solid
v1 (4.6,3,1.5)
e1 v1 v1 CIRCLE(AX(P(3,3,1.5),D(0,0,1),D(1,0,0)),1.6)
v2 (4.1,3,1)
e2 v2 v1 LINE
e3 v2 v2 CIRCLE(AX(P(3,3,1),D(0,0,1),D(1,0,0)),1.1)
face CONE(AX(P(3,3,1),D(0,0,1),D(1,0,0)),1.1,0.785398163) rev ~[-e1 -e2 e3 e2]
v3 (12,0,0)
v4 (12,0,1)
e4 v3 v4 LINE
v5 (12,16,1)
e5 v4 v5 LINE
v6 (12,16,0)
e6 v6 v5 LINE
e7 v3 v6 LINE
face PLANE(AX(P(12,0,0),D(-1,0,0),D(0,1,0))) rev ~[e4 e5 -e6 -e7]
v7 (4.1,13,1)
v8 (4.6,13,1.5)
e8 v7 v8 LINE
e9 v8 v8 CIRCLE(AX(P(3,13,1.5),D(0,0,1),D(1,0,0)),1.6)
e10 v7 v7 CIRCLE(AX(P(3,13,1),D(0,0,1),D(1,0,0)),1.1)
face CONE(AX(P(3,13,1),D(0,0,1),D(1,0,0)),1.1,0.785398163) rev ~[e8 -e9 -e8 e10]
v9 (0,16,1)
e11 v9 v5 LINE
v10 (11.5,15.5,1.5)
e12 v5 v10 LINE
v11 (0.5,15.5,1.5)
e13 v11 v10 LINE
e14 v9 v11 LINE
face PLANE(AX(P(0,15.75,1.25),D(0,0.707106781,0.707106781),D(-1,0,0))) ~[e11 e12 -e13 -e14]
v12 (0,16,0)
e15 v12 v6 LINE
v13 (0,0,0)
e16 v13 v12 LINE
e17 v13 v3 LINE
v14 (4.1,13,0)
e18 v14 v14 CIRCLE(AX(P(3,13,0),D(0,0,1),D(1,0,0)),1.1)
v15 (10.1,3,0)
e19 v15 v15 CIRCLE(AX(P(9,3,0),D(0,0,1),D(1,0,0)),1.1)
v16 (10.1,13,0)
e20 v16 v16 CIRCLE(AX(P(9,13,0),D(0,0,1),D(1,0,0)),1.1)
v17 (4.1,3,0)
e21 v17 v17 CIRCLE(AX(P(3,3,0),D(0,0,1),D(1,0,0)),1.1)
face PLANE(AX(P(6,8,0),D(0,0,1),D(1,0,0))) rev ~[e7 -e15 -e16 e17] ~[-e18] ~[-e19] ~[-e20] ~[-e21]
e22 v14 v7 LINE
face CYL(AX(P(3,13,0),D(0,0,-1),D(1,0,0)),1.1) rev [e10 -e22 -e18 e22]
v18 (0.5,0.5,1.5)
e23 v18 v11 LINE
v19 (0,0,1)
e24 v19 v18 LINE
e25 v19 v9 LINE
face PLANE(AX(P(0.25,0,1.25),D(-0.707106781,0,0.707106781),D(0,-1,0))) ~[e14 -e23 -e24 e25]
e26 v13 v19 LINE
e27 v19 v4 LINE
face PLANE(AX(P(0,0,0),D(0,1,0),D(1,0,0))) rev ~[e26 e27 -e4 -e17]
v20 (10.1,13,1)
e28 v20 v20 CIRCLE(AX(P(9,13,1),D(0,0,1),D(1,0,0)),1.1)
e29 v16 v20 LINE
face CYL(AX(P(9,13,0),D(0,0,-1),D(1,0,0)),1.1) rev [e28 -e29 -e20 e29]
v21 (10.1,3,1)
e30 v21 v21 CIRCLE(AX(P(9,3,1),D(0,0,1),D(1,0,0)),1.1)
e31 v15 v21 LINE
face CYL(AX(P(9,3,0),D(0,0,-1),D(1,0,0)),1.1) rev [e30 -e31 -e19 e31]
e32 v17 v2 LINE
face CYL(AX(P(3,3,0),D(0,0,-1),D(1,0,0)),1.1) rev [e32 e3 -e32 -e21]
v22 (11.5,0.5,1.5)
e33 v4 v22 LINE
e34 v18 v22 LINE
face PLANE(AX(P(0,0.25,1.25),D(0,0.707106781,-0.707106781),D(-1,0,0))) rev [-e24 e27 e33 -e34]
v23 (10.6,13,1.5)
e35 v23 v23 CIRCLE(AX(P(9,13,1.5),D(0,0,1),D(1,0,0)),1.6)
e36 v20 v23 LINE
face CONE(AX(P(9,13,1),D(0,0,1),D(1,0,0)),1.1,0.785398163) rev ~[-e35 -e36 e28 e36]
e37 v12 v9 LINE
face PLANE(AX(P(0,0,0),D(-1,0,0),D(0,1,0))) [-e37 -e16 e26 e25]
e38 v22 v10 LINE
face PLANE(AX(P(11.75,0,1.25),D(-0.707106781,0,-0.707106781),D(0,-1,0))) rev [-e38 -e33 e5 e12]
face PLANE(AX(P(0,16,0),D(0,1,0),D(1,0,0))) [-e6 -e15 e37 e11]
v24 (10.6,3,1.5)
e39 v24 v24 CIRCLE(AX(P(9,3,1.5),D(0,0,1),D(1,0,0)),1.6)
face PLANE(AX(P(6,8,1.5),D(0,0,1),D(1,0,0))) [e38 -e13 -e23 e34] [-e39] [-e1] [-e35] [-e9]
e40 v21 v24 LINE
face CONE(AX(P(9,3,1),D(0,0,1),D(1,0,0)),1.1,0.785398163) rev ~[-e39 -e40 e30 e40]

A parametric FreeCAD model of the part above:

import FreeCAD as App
import Part
import Sketcher
from FreeCAD import Vector
Q = App.Units.Quantity


def edges_at(feature, points):
    """Names of the edges that pass closest to the given points."""
    edges = feature.Shape.Edges
    near = lambda p: min(range(len(edges)), key=lambda i: edges[i].distToShape(Part.Vertex(*p))[0])
    return sorted({f"Edge{near(p) + 1}" for p in points})


def add_polygon(sketch, points):
    """Adds a closed chain of lines whose ends are joined by coincident constraints."""
    first, n = sketch.GeometryCount, len(points)
    for a, b in zip(points, points[1:] + points[:1]):
        sketch.addGeometry(Part.LineSegment(App.Vector(*a, 0), App.Vector(*b, 0)), False)
    for i in range(n):
        sketch.addConstraint(Sketcher.Constraint("Coincident", first + i, 2, first + (i + 1) % n, 1))

doc = App.newDocument("Part")
params = doc.addObject("Spreadsheet::Sheet", "Params")
for row, (alias, value) in enumerate([
    ("sketch1_diameter", "2.2 mm"),
    ("sketch1_width", "12 mm"),
    ("sketch1_height", "16 mm"),
    ("pad1_length", "1.5 mm"),
    ("chamfer_size", "0.5 mm"),
], start=1):
    params.set(f"A{row}", alias)
    params.set(f"B{row}", "=" + value)
    params.setAlias(f"B{row}", alias)

body = doc.addObject("PartDesign::Body", "Body")

sketch1 = doc.addObject("Sketcher::SketchObject", "Sketch")
body.addObject(sketch1)
sketch1.AttachmentSupport = (doc.XY_Plane, [""])
sketch1.MapMode = "FlatFace"
add_polygon(sketch1, [(0, 16), (0, 0), (12, 0), (12, 16)])
sketch1.addGeometry(Part.Circle(Vector(3, 3, 0), Vector(0, 0, 1), 1.1), False)
sketch1.addGeometry(Part.Circle(Vector(9, 3, 0), Vector(0, 0, 1), 1.1), False)
sketch1.addGeometry(Part.Circle(Vector(3, 13, 0), Vector(0, 0, 1), 1.1), False)
sketch1.addGeometry(Part.Circle(Vector(9, 13, 0), Vector(0, 0, 1), 1.1), False)
sketch1.addConstraint([
    Sketcher.Constraint("Vertical", 0),
    Sketcher.Constraint("Horizontal", 1),
    Sketcher.Constraint("Vertical", 2),
    Sketcher.Constraint("Horizontal", 3),
    Sketcher.Constraint("Coincident", 0, 2, -1, 1),
    Sketcher.Constraint("Equal", 4, 5),
    Sketcher.Constraint("Equal", 5, 6),
    Sketcher.Constraint("Equal", 6, 7),
    Sketcher.Constraint("Horizontal", 4, 3, 5, 3),
    Sketcher.Constraint("Horizontal", 6, 3, 7, 3),
    Sketcher.Constraint("Vertical", 4, 3, 6, 3),
    Sketcher.Constraint("Vertical", 5, 3, 7, 3),
    Sketcher.Constraint("Diameter", 4, Q("2.2 mm")),
    Sketcher.Constraint("DistanceX", 1, 1, 1, 2, Q("12 mm")),
    Sketcher.Constraint("DistanceY", 0, 2, 0, 1, Q("16 mm")),
    Sketcher.Constraint("DistanceX", -1, 1, 4, 3, Q("3 mm")),
    Sketcher.Constraint("DistanceY", -1, 1, 4, 3, Q("3 mm")),
    Sketcher.Constraint("DistanceX", -1, 1, 5, 3, Q("9 mm")),
    Sketcher.Constraint("DistanceY", -1, 1, 6, 3, Q("13 mm")),
])
sketch1.setExpression("Constraints[16]", "Params.sketch1_diameter")
sketch1.setExpression("Constraints[17]", "Params.sketch1_width")
sketch1.setExpression("Constraints[18]", "Params.sketch1_height")
pad1 = doc.addObject("PartDesign::Pad", "Pad")
body.addObject(pad1)
pad1.Profile = sketch1
pad1.setExpression("Length", "Params.pad1_length")
doc.recompute()

chamfer = doc.addObject("PartDesign::Chamfer", "Chamfer")
body.addObject(chamfer)
chamfer.Base = (pad1, edges_at(pad1, [
    (0, 8, 1.5),
    (6, 0, 1.5),
    (12, 8, 1.5),
    (6, 16, 1.5),
    (1.9, 3, 1.5),
    (7.9, 3, 1.5),
    (1.9, 13, 1.5),
    (7.9, 13, 1.5),
]))
chamfer.setExpression("Size", "Params.chamfer_size")

doc.recompute()
